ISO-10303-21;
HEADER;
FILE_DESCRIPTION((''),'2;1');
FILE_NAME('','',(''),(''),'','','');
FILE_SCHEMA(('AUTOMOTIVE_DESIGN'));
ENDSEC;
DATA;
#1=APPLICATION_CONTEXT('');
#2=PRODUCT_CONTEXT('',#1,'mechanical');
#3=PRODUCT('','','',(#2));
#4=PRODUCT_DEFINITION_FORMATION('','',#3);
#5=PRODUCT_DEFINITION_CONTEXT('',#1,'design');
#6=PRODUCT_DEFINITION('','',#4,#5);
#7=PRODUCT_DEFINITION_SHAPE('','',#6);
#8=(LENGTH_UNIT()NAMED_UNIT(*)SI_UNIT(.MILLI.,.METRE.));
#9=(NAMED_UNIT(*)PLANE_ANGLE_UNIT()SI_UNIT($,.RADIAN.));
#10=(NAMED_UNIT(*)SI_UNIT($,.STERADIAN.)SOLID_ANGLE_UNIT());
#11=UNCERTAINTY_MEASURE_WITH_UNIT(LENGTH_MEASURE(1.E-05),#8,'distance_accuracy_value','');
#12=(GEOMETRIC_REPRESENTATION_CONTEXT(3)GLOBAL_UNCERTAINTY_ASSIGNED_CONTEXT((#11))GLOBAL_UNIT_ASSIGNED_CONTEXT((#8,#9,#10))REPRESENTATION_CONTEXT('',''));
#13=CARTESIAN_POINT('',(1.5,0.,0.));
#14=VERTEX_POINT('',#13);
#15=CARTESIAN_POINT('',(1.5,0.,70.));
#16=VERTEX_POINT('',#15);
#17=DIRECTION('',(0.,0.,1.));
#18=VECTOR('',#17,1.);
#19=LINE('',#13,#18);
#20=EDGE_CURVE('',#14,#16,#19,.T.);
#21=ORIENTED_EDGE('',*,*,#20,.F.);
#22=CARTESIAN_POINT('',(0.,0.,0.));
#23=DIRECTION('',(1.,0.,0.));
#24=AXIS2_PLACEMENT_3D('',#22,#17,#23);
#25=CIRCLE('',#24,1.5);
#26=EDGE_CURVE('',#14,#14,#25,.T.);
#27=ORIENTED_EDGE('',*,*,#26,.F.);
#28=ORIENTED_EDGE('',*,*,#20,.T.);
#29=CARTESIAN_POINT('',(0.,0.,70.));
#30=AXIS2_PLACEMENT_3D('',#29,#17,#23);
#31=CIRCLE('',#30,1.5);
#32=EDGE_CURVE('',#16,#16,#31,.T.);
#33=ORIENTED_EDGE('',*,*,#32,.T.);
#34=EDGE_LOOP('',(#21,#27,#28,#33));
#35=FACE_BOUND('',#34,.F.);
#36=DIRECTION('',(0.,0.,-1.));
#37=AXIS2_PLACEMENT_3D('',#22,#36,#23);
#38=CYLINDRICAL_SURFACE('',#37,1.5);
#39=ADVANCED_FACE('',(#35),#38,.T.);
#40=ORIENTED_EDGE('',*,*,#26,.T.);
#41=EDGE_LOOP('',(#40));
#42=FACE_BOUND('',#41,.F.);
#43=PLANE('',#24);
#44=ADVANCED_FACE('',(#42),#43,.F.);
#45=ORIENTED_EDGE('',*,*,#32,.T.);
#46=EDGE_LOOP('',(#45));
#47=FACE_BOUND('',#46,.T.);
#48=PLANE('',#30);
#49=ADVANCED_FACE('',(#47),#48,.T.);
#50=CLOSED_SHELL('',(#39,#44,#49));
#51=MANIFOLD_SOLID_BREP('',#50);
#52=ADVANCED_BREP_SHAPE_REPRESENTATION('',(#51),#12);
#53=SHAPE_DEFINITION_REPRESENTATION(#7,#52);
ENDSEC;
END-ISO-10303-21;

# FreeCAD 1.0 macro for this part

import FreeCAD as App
import Part
import Sketcher
from FreeCAD import Vector
Q = App.Units.Quantity

doc = App.newDocument("Part")
body = doc.addObject("PartDesign::Body", "Body")

sketch1 = body.newObject("Sketcher::SketchObject", "Sketch")
sketch1.AttachmentSupport = (doc.getObject("XY_Plane"), [""])
sketch1.MapMode = "FlatFace"
sketch1.addGeometry(Part.Circle(Vector(0, 0, 0), Vector(0, 0, 1), 1.5), False)
sketch1.addConstraint([
    Sketcher.Constraint("Coincident", 0, 3, -1, 1),
    Sketcher.Constraint("Diameter", 0, Q("3 mm")),
])
pad1 = body.newObject("PartDesign::Pad", "Pad")
pad1.Profile = sketch1
pad1.Length = 70

doc.recompute()
